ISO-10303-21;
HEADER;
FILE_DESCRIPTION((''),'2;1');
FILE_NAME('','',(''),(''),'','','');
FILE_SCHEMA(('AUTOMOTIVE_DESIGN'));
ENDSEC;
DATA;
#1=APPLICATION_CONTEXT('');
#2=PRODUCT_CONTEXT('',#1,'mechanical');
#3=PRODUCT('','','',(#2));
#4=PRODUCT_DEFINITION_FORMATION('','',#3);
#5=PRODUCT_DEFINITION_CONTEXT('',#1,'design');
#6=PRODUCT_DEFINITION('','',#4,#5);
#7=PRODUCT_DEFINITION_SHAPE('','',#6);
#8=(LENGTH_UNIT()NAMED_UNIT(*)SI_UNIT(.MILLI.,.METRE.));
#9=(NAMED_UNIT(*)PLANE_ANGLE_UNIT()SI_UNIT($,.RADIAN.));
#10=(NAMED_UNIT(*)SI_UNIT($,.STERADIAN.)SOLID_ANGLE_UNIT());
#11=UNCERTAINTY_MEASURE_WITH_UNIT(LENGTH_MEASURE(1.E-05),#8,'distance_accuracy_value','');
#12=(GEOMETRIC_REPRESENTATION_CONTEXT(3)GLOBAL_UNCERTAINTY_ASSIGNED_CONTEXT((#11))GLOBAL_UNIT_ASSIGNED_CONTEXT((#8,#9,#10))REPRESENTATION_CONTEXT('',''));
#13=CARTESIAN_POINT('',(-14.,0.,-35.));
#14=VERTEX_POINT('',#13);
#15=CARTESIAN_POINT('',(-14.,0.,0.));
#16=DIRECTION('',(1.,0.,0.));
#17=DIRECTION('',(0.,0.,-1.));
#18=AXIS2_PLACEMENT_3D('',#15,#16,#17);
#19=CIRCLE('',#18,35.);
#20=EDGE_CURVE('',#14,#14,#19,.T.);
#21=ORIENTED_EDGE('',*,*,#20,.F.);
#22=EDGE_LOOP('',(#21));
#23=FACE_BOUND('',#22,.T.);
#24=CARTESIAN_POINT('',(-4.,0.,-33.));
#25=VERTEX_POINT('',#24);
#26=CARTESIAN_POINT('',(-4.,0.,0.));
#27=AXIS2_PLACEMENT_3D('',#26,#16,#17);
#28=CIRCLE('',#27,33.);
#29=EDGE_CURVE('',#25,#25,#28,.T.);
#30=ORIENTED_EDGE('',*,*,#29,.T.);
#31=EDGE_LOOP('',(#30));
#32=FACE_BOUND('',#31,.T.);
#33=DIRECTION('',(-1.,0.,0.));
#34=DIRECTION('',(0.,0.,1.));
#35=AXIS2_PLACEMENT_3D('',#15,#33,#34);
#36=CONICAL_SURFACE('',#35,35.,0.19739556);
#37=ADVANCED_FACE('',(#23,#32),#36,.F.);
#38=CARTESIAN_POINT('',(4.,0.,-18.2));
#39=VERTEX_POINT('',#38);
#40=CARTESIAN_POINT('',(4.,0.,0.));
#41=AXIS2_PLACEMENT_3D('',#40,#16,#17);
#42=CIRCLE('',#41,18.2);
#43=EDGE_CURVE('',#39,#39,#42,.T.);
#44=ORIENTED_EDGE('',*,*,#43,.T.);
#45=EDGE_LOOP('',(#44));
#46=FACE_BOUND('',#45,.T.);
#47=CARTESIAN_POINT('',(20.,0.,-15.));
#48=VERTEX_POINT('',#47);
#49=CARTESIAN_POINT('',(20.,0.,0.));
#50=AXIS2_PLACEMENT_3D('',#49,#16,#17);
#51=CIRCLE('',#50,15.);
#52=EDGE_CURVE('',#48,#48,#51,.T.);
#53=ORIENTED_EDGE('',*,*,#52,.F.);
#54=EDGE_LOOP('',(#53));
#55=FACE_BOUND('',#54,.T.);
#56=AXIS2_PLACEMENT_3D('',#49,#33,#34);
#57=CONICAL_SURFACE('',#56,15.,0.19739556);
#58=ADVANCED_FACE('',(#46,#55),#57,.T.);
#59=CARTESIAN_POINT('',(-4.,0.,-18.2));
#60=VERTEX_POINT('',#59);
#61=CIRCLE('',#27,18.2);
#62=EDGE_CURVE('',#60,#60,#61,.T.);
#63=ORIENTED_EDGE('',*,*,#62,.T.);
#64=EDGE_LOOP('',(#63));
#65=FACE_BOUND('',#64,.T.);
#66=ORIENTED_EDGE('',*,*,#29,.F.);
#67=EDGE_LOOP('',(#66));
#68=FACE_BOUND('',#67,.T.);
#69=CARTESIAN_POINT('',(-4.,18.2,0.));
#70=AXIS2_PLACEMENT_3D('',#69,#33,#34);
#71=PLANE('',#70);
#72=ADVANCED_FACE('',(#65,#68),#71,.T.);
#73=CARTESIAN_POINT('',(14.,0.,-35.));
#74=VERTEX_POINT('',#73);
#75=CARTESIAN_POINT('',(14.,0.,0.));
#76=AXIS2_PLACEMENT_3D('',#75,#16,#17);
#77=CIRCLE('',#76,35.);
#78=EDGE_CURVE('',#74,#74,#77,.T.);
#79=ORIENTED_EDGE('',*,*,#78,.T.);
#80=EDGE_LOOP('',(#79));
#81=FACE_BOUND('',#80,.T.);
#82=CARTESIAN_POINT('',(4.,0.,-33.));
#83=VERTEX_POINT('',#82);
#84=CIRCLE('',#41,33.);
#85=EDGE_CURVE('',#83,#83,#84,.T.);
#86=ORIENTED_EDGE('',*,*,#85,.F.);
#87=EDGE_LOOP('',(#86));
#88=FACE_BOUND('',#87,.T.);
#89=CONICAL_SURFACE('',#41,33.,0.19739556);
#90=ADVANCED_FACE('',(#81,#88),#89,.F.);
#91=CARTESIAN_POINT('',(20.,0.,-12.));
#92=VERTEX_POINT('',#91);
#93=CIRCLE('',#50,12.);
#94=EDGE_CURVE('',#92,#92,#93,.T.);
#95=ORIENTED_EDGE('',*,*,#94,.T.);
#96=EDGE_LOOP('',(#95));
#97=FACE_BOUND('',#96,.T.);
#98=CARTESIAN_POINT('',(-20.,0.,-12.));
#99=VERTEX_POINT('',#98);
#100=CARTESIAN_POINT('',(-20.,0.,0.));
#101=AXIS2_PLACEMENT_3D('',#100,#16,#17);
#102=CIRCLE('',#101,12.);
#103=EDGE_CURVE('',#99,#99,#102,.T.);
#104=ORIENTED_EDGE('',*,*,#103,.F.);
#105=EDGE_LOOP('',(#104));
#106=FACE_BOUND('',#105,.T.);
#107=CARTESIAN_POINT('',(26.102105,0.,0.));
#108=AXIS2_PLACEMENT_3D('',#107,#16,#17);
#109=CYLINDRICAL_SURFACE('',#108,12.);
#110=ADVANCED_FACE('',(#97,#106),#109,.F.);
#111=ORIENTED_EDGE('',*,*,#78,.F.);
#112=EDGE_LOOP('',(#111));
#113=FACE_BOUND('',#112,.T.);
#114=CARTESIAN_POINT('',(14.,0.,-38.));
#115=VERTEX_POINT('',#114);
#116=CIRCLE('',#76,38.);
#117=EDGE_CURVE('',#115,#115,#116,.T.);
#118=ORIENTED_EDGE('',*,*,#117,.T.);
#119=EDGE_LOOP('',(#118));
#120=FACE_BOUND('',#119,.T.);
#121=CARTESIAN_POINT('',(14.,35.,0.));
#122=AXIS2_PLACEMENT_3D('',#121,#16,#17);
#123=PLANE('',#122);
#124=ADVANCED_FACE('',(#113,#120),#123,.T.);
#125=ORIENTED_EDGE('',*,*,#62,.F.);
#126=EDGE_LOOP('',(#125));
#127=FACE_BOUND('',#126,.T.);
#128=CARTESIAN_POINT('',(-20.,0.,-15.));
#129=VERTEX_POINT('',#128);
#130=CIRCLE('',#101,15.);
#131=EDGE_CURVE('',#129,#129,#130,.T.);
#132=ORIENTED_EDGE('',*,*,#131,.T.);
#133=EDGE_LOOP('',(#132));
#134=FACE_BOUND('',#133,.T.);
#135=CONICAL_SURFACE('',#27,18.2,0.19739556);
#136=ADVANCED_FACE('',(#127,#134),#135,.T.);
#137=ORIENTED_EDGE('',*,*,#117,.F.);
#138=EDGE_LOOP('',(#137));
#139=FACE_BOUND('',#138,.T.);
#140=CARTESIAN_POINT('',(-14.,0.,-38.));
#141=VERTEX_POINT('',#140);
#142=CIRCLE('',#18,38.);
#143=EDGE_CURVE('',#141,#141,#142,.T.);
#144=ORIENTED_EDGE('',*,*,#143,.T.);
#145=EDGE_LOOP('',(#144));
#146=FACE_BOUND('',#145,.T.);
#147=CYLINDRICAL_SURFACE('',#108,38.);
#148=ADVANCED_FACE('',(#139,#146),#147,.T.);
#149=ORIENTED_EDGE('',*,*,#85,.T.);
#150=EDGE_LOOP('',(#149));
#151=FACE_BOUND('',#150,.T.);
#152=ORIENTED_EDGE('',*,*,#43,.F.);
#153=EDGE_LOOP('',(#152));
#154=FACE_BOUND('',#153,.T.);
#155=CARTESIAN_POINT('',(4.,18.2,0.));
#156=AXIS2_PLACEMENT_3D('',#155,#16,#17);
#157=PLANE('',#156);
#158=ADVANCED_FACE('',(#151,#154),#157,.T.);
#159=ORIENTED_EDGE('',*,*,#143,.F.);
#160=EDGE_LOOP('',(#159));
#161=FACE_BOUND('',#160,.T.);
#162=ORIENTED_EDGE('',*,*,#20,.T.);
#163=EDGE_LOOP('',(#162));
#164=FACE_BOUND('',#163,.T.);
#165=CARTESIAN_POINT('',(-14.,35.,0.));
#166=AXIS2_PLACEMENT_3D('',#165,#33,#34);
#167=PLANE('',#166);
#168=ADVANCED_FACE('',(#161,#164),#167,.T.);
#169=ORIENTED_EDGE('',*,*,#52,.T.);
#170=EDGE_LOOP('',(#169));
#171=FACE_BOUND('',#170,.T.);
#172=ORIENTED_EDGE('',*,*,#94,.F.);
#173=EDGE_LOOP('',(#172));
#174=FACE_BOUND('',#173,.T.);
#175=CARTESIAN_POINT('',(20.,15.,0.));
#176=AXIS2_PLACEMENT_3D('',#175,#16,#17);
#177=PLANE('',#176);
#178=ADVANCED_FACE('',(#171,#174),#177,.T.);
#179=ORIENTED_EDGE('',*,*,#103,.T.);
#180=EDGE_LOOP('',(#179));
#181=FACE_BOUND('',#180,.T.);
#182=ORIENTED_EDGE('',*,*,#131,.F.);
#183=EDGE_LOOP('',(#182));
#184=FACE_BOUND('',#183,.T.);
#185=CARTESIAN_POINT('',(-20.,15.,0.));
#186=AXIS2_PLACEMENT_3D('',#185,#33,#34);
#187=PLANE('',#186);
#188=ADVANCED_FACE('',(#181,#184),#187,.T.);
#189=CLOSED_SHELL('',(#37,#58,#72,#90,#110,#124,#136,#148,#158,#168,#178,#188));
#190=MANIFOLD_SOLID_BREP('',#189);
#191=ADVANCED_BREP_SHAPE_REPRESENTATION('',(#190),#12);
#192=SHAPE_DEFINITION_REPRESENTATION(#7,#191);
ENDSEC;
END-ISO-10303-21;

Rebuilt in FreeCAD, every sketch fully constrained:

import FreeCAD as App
import Part
import Sketcher
from FreeCAD import Vector
Q = App.Units.Quantity


def add_polygon(sketch, points):
    """Adds a closed chain of lines whose ends are joined by coincident constraints."""
    first, n = sketch.GeometryCount, len(points)
    for a, b in zip(points, points[1:] + points[:1]):
        sketch.addGeometry(Part.LineSegment(App.Vector(*a, 0), App.Vector(*b, 0)), False)
    for i in range(n):
        sketch.addConstraint(Sketcher.Constraint("Coincident", first + i, 2, first + (i + 1) % n, 1))

doc = App.newDocument("Part")
body = doc.addObject("PartDesign::Body", "Body")

# Sketch on XY plane
sketch1 = body.newObject("Sketcher::SketchObject", "Sketch")
sketch1.AttachmentSupport = (doc.getObject("XY_Plane"), [""])
sketch1.MapMode = "FlatFace"
add_polygon(sketch1, [(20, 12), (20, 15), (4, 18.2), (4, 33), (14, 35), (14, 38), (-14, 38), (-14, 35), (-4, 33), (-4, 18.2), (-20, 15), (-20, 12)])  # lines 0-11
sketch1.addConstraint(Sketcher.Constraint("Vertical", 0))
sketch1.addConstraint(Sketcher.Constraint("Vertical", 2))
sketch1.addConstraint(Sketcher.Constraint("Vertical", 4))
sketch1.addConstraint(Sketcher.Constraint("Horizontal", 5))
sketch1.addConstraint(Sketcher.Constraint("Vertical", 6))
sketch1.addConstraint(Sketcher.Constraint("Vertical", 8))
sketch1.addConstraint(Sketcher.Constraint("Vertical", 10))
sketch1.addConstraint(Sketcher.Constraint("Horizontal", 11))
sketch1.addConstraint(Sketcher.Constraint("Symmetric", 3, 2, 6, 2, -2))
sketch1.addConstraint(Sketcher.Constraint("Symmetric", 2, 2, 7, 2, -2))
sketch1.addConstraint(Sketcher.Constraint("Symmetric", 0, 2, 9, 2, -2))
sketch1.addConstraint(Sketcher.Constraint("Parallel", 1, 7))
sketch1.addConstraint(Sketcher.Constraint("Parallel", 3, 9))
sketch1.addConstraint(Sketcher.Constraint("Equal", 0, 4))
sketch1.addConstraint(Sketcher.Constraint("DistanceX", 5, 2, 5, 1, Q("28 mm")))
sketch1.addConstraint(Sketcher.Constraint("DistanceX", 11, 1, 11, 2, Q("40 mm")))
sketch1.addConstraint(Sketcher.Constraint("DistanceY", 0, 1, 0, 2, Q("3 mm")))
sketch1.addConstraint(Sketcher.Constraint("DistanceY", 2, 1, 2, 2, Q("14.8 mm")))
sketch1.addConstraint(Sketcher.Constraint("DistanceY", -1, 1, 0, 2, Q("15 mm")))
sketch1.addConstraint(Sketcher.Constraint("DistanceX", -1, 1, 1, 2, Q("4 mm")))
sketch1.addConstraint(Sketcher.Constraint("DistanceY", -1, 1, 2, 2, Q("33 mm")))
revolution = body.newObject("PartDesign::Revolution", "Revolution")
revolution.Profile = sketch1
revolution.ReferenceAxis = (sketch1, ["H_Axis"])
revolution.Angle = 360

doc.recompute()
